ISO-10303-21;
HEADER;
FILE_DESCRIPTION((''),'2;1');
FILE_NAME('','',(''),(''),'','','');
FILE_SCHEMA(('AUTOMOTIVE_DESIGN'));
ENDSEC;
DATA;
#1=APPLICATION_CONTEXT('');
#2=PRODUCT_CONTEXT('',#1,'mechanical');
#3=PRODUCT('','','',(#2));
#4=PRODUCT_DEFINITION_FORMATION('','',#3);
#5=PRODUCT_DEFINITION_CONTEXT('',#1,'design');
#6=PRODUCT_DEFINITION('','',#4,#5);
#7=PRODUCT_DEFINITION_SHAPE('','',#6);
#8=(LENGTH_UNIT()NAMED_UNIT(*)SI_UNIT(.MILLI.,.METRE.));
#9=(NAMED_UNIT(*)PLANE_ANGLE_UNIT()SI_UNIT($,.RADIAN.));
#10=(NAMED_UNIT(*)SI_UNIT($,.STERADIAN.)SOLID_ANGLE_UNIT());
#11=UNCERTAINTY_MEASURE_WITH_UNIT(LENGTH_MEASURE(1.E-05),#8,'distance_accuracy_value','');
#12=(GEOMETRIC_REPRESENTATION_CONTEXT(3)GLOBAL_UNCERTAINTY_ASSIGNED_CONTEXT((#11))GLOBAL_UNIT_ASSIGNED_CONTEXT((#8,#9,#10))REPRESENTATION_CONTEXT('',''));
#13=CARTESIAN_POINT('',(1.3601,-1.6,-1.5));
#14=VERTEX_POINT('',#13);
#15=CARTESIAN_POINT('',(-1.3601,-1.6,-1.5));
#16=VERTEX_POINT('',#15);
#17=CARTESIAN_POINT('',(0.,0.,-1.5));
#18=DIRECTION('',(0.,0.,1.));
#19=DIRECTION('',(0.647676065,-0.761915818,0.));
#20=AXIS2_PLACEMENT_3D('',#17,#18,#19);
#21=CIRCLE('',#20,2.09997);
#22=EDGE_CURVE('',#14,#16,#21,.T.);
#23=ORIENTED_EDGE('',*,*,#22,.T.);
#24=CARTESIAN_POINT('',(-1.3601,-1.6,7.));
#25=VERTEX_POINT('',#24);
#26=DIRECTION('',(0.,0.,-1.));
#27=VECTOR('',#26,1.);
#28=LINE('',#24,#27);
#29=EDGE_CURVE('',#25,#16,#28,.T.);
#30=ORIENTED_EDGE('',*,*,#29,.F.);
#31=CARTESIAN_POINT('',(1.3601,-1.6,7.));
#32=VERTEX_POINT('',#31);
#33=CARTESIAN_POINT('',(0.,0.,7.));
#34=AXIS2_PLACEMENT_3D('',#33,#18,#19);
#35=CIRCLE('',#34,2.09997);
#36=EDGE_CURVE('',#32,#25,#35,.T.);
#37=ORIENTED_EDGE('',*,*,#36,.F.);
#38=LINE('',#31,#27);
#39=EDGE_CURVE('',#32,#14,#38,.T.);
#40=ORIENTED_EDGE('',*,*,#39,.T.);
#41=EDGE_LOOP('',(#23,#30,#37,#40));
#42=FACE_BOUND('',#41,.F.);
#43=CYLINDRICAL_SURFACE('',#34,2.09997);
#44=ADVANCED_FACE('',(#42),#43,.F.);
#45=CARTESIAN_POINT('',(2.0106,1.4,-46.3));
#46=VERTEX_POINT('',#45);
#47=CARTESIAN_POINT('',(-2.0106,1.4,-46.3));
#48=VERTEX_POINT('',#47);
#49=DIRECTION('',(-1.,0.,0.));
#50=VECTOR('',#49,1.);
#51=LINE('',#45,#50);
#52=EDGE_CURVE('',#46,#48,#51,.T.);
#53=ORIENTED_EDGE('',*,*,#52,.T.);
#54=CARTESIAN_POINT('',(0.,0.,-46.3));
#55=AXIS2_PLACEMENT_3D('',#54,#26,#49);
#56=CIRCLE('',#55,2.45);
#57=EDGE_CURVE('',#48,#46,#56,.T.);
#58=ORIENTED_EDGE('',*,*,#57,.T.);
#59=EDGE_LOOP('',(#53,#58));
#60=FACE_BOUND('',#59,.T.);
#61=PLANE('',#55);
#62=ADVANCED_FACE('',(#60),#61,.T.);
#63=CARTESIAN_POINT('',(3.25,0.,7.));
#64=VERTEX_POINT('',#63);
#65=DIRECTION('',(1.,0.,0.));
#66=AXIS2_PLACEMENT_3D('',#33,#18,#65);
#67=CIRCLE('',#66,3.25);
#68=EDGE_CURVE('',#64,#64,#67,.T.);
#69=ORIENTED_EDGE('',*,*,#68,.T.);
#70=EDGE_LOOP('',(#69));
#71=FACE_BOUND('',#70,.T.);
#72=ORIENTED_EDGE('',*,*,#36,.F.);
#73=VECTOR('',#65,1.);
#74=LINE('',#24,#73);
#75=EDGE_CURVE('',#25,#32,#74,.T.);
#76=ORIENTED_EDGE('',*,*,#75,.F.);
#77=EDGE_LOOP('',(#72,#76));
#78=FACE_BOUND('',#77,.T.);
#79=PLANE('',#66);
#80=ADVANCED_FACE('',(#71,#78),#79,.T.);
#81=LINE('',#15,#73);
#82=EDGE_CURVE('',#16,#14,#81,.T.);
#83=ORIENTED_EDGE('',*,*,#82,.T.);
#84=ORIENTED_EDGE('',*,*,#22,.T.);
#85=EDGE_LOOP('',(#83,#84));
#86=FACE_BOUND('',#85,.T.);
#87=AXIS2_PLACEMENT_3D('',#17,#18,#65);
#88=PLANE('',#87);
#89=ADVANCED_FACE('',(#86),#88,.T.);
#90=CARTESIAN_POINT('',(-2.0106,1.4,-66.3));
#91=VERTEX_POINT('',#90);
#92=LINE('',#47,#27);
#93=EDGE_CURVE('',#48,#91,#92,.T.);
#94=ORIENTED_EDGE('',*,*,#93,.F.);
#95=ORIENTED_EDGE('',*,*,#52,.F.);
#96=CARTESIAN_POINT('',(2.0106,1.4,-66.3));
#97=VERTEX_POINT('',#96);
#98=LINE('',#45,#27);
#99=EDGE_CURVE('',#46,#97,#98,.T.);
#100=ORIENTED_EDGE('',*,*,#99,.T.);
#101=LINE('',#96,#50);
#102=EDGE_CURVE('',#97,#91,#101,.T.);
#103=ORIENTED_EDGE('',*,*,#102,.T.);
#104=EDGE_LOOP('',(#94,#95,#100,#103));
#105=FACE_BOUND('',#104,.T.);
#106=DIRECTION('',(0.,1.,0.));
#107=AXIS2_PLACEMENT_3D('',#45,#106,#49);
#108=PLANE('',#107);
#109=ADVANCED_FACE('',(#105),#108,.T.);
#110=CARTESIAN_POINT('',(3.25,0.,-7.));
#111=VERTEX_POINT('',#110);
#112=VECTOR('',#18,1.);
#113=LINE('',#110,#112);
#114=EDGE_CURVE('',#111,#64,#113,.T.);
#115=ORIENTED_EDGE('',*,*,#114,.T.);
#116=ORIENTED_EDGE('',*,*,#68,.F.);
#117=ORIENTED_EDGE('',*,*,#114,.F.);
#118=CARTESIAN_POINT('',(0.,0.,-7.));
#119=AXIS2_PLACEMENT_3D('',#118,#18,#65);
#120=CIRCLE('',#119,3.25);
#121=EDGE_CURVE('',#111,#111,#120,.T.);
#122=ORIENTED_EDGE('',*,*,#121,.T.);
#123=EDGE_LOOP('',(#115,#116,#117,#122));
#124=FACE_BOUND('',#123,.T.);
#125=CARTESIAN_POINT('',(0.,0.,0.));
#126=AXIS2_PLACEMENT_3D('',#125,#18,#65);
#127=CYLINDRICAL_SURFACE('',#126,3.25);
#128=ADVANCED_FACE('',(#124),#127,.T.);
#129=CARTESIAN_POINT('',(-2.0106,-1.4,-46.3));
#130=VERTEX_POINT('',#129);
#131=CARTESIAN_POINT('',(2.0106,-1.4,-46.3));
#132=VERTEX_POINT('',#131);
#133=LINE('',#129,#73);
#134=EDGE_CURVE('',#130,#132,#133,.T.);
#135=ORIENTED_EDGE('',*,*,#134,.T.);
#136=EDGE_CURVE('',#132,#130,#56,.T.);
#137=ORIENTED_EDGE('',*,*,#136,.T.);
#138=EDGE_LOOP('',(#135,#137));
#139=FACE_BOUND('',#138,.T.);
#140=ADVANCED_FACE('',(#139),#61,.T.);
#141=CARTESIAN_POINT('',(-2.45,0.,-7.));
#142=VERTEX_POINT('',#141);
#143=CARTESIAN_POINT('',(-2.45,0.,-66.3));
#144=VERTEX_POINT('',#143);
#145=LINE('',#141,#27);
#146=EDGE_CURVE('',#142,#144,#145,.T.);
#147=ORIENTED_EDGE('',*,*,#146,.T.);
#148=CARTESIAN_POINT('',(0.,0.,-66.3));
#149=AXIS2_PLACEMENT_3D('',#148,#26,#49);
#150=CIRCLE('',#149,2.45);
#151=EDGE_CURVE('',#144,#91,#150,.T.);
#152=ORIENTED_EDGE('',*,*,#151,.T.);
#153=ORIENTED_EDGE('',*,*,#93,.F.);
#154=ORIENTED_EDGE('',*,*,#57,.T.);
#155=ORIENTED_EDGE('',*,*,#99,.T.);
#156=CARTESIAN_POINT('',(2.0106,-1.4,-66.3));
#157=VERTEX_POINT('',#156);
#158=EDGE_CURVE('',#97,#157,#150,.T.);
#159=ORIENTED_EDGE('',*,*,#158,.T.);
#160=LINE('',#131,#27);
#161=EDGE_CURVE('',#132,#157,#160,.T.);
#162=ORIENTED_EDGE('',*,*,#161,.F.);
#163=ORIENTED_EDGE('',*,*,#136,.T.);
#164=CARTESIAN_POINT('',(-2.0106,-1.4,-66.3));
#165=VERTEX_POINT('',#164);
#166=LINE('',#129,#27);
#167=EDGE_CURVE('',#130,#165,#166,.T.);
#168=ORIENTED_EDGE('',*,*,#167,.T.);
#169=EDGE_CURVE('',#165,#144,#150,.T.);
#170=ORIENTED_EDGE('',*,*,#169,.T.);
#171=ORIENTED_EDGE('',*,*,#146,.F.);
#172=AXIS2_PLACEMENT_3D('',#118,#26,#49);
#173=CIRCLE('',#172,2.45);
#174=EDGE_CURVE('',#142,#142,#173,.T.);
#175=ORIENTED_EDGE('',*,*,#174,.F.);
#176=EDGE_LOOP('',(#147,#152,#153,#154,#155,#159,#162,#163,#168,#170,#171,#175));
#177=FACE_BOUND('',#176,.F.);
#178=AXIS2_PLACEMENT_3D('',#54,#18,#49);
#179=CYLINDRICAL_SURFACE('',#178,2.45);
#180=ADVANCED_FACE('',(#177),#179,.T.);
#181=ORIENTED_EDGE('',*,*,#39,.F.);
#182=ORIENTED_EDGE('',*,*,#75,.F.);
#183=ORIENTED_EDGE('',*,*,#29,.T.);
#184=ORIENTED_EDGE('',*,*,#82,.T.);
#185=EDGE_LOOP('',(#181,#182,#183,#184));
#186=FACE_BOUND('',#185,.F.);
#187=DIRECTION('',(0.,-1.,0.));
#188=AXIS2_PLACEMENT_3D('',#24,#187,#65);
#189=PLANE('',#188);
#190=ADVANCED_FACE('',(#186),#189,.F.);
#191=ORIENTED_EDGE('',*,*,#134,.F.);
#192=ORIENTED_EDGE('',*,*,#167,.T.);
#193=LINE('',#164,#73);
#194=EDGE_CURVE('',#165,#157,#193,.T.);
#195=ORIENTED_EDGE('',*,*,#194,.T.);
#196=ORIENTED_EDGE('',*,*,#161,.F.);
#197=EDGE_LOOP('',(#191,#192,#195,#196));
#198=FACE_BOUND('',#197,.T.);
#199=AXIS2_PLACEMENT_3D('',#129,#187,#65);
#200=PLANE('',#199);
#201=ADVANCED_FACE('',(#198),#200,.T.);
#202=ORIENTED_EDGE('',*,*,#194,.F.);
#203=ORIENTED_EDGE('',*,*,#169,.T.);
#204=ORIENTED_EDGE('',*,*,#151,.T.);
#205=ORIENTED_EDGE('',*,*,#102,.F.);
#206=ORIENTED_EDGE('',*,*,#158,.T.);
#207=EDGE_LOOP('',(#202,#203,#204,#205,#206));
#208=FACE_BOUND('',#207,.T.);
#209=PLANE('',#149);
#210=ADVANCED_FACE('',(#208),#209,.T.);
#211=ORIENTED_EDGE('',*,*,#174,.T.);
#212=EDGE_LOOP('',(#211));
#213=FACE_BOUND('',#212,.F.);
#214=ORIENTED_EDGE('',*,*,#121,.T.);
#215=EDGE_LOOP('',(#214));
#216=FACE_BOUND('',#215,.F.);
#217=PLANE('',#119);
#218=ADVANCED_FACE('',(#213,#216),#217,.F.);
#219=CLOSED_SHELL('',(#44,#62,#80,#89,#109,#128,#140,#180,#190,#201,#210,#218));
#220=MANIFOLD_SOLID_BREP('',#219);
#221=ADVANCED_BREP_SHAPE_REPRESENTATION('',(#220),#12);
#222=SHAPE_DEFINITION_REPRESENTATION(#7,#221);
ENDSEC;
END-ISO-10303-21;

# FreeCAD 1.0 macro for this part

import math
import FreeCAD as App
import Part
import Sketcher
from FreeCAD import Vector

doc = App.newDocument("Part")
body = doc.addObject("PartDesign::Body", "Body")

# Sketch on XY plane
sketch1 = doc.addObject("Sketcher::SketchObject", "Sketch")
body.addObject(sketch1)
sketch1.AttachmentSupport = (doc.XY_Plane, [""])
sketch1.MapMode = "FlatFace"
sketch1.addGeometry(Part.Circle(Vector(0, 0, 0), Vector(0, 0, 1), 3.2), False)
sketch1.addConstraint([
    Sketcher.Constraint("Coincident", 0, 3, -1, 1),
    Sketcher.Constraint("Diameter", 0, 6.5),
])
pad1 = doc.addObject("PartDesign::Pad", "Pad")
body.addObject(pad1)
pad1.Profile = sketch1
pad1.Length = 14
pad1.Midplane = True

# Sketch on XY plane
sketch2 = doc.addObject("Sketcher::SketchObject", "Sketch001")
body.addObject(sketch2)
sketch2.AttachmentSupport = (doc.XY_Plane, [""])
sketch2.MapMode = "FlatFace"
sketch2.AttachmentOffset = App.Placement(Vector(0, 0, 7), App.Rotation())
sketch2.addGeometry([
    Part.LineSegment(Vector(-1.4, -1.6, 0), Vector(1.4, -1.6, 0)),
    Part.ArcOfCircle(Part.Circle(Vector(0, 0, 0), Vector(0, 0, 1), 2.1), math.radians(-50), math.radians(230)),
], False)
sketch2.addConstraint([
    Sketcher.Constraint("Coincident", 0, 1, 1, 2),
    Sketcher.Constraint("Coincident", 1, 1, 0, 2),
    Sketcher.Constraint("Horizontal", 0),
    Sketcher.Constraint("Coincident", 1, 3, -1, 1),
    Sketcher.Constraint("Radius", 1, 2.1),
    Sketcher.Constraint("DistanceY", 0, 1, -1, 1, 1.6),
])
pocket1 = doc.addObject("PartDesign::Pocket", "Pocket")
body.addObject(pocket1)
pocket1.Profile = sketch2
pocket1.Length = 8.5

# Sketch on XY plane
sketch3 = doc.addObject("Sketcher::SketchObject", "Sketch002")
body.addObject(sketch3)
sketch3.AttachmentSupport = (doc.XY_Plane, [""])
sketch3.MapMode = "FlatFace"
sketch3.AttachmentOffset = App.Placement(Vector(0, 0, -7), App.Rotation())
sketch3.addGeometry(Part.Circle(Vector(0, 0, 0), Vector(0, 0, 1), 2.5), False)
sketch3.addConstraint([
    Sketcher.Constraint("Coincident", 0, 3, -1, 1),
    Sketcher.Constraint("Diameter", 0, 4.9),
])
pad2 = doc.addObject("PartDesign::Pad", "Pad001")
body.addObject(pad2)
pad2.Profile = sketch3
pad2.Length = 39.3
pad2.Reversed = True

# Sketch on XY plane
sketch4 = doc.addObject("Sketcher::SketchObject", "Sketch003")
body.addObject(sketch4)
sketch4.AttachmentSupport = (doc.XY_Plane, [""])
sketch4.MapMode = "FlatFace"
sketch4.AttachmentOffset = App.Placement(Vector(0, 0, -46.3), App.Rotation())
sketch4.addGeometry([
    Part.ArcOfCircle(Part.Circle(Vector(0, 0, 0), Vector(0, 0, 1), 2.5), math.radians(145), math.radians(215)),
    Part.LineSegment(Vector(-2, 1.4, 0), Vector(2, 1.4, 0)),
    Part.ArcOfCircle(Part.Circle(Vector(0, 0, 0), Vector(0, 0, 1), 2.5), math.radians(-35), math.radians(35)),
    Part.LineSegment(Vector(2, -1.4, 0), Vector(-2, -1.4, 0)),
], False)
sketch4.addConstraint([
    Sketcher.Constraint("Coincident", 0, 1, 1, 1),
    Sketcher.Constraint("Coincident", 1, 2, 2, 2),
    Sketcher.Constraint("Coincident", 2, 1, 3, 1),
    Sketcher.Constraint("Coincident", 3, 2, 0, 2),
    Sketcher.Constraint("Horizontal", 1),
    Sketcher.Constraint("Horizontal", 3),
    Sketcher.Constraint("Coincident", 0, 3, -1, 1),
    Sketcher.Constraint("Coincident", 2, 3, -1, 1),
    Sketcher.Constraint("Equal", 0, 2),
    Sketcher.Constraint("Vertical", 1, 2, 2, 1),
    Sketcher.Constraint("DistanceY", -1, 1, 0, 1, 1.4),
    Sketcher.Constraint("Radius", 0, 2.45),
])
pad3 = doc.addObject("PartDesign::Pad", "Pad002")
body.addObject(pad3)
pad3.Profile = sketch4
pad3.Length = 20
pad3.Reversed = True

doc.recompute()
